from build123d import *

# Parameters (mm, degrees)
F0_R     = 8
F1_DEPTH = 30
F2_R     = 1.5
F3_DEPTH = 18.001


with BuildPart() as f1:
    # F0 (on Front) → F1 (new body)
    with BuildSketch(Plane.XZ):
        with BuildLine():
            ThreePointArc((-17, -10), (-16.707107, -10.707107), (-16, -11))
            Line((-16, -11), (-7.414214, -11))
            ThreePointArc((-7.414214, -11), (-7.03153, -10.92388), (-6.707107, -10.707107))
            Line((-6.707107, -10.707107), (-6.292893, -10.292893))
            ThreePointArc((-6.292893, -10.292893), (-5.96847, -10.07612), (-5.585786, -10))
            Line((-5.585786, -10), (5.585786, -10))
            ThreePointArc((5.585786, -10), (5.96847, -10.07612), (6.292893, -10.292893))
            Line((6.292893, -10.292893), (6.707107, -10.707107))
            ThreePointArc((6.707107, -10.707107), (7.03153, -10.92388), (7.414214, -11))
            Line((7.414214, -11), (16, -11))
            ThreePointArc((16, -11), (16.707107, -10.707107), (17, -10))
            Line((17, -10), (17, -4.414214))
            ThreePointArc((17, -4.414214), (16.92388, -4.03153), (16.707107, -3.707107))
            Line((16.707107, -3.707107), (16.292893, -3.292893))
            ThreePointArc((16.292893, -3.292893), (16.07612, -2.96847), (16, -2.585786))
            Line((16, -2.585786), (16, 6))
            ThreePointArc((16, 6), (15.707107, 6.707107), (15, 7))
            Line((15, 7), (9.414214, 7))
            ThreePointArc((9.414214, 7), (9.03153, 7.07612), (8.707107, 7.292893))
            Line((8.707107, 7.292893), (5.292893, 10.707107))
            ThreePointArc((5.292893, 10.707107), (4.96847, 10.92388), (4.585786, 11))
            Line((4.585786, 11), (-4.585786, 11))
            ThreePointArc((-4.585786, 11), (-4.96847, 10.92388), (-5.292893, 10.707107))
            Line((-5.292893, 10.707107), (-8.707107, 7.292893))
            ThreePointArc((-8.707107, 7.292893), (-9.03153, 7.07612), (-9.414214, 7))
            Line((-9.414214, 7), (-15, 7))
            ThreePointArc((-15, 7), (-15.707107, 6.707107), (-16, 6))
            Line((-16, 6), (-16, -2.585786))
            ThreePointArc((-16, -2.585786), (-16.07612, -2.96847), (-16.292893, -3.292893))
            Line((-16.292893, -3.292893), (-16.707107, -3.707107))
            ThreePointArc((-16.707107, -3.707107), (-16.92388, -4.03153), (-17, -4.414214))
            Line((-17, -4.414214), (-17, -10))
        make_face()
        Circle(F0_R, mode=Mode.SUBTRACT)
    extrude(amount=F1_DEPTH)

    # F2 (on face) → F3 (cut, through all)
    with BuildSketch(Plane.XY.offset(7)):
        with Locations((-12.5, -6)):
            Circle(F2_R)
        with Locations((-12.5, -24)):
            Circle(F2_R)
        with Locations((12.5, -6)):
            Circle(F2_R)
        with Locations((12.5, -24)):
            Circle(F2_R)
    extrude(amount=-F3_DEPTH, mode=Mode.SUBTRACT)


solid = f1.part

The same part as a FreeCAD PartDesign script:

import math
import FreeCAD as App
import Part
import Sketcher

V = App.Vector
Q = App.Units.Quantity

doc = App.newDocument("Part")
body = doc.addObject("PartDesign::Body", "Body")

sketch1 = body.newObject("Sketcher::SketchObject", "Sketch")
sketch1.AttachmentSupport = (doc.getObject("XZ_Plane"), [""])
sketch1.MapMode = "FlatFace"
sketch1.addGeometry([
    Part.ArcOfCircle(Part.Circle(V(-16, -10, 0), V(0, 0, 1), 1), math.radians(180), math.radians(270)),
    Part.LineSegment(V(-16, -11, 0), V(-7.4, -11, 0)),
    Part.ArcOfCircle(Part.Circle(V(-7.4, -10, 0), V(0, 0, 1), 1), math.radians(-90), math.radians(-45)),
    Part.LineSegment(V(-6.7, -10.7, 0), V(-6.3, -10.3, 0)),
    Part.ArcOfCircle(Part.Circle(V(-5.6, -11, 0), V(0, 0, 1), 1), math.radians(90), math.radians(135)),
    Part.LineSegment(V(-5.6, -10, 0), V(5.6, -10, 0)),
    Part.ArcOfCircle(Part.Circle(V(5.6, -11, 0), V(0, 0, 1), 1), math.radians(45), math.radians(90)),
    Part.LineSegment(V(6.3, -10.3, 0), V(6.7, -10.7, 0)),
    Part.ArcOfCircle(Part.Circle(V(7.4, -10, 0), V(0, 0, 1), 1), math.radians(-135), math.radians(-90)),
    Part.LineSegment(V(7.4, -11, 0), V(16, -11, 0)),
    Part.ArcOfCircle(Part.Circle(V(16, -10, 0), V(0, 0, 1), 1), math.radians(-90), math.radians(0)),
    Part.LineSegment(V(17, -10, 0), V(17, -4.4, 0)),
    Part.ArcOfCircle(Part.Circle(V(16, -4.4, 0), V(0, 0, 1), 1), math.radians(0), math.radians(45)),
    Part.LineSegment(V(16.7, -3.7, 0), V(16.3, -3.3, 0)),
    Part.ArcOfCircle(Part.Circle(V(17, -2.6, 0), V(0, 0, 1), 1), math.radians(180), math.radians(225)),
    Part.LineSegment(V(16, -2.6, 0), V(16, 6, 0)),
    Part.ArcOfCircle(Part.Circle(V(15, 6, 0), V(0, 0, 1), 1), math.radians(0), math.radians(90)),
    Part.LineSegment(V(15, 7, 0), V(9.4, 7, 0)),
    Part.ArcOfCircle(Part.Circle(V(9.4, 8, 0), V(0, 0, 1), 1), math.radians(-135), math.radians(-90)),
    Part.LineSegment(V(8.7, 7.3, 0), V(5.3, 10.7, 0)),
    Part.ArcOfCircle(Part.Circle(V(4.6, 10, 0), V(0, 0, 1), 1), math.radians(45), math.radians(90)),
    Part.LineSegment(V(4.6, 11, 0), V(-4.6, 11, 0)),
    Part.ArcOfCircle(Part.Circle(V(-4.6, 10, 0), V(0, 0, 1), 1), math.radians(90), math.radians(135)),
    Part.LineSegment(V(-5.3, 10.7, 0), V(-8.7, 7.3, 0)),
    Part.ArcOfCircle(Part.Circle(V(-9.4, 8, 0), V(0, 0, 1), 1), math.radians(-90), math.radians(-45)),
    Part.LineSegment(V(-9.4, 7, 0), V(-15, 7, 0)),
    Part.ArcOfCircle(Part.Circle(V(-15, 6, 0), V(0, 0, 1), 1), math.radians(90), math.radians(180)),
    Part.LineSegment(V(-16, 6, 0), V(-16, -2.6, 0)),
    Part.ArcOfCircle(Part.Circle(V(-17, -2.6, 0), V(0, 0, 1), 1), math.radians(-45), math.radians(0)),
    Part.LineSegment(V(-16.3, -3.3, 0), V(-16.7, -3.7, 0)),
    Part.ArcOfCircle(Part.Circle(V(-16, -4.4, 0), V(0, 0, 1), 1), math.radians(135), math.radians(180)),
    Part.LineSegment(V(-17, -4.4, 0), V(-17, -10, 0)),
    Part.Circle(V(0, 0, 0), V(0, 0, 1), 8),
], False)
sketch1.addConstraint([
    Sketcher.Constraint("Tangent", 0, 2, 1, 1),
    Sketcher.Constraint("Coincident", 1, 2, 2, 1),
    Sketcher.Constraint("Coincident", 2, 2, 3, 1),
    Sketcher.Constraint("Coincident", 3, 2, 4, 2),
    Sketcher.Constraint("Coincident", 4, 1, 5, 1),
    Sketcher.Constraint("Coincident", 5, 2, 6, 2),
    Sketcher.Constraint("Coincident", 6, 1, 7, 1),
    Sketcher.Constraint("Coincident", 7, 2, 8, 1),
    Sketcher.Constraint("Coincident", 8, 2, 9, 1),
    Sketcher.Constraint("Tangent", 9, 2, 10, 1),
    Sketcher.Constraint("Tangent", 10, 2, 11, 1),
    Sketcher.Constraint("Coincident", 11, 2, 12, 1),
    Sketcher.Constraint("Coincident", 12, 2, 13, 1),
    Sketcher.Constraint("Coincident", 13, 2, 14, 2),
    Sketcher.Constraint("Coincident", 14, 1, 15, 1),
    Sketcher.Constraint("Tangent", 15, 2, 16, 1),
    Sketcher.Constraint("Tangent", 16, 2, 17, 1),
    Sketcher.Constraint("Coincident", 17, 2, 18, 2),
    Sketcher.Constraint("Coincident", 18, 1, 19, 1),
    Sketcher.Constraint("Coincident", 19, 2, 20, 1),
    Sketcher.Constraint("Coincident", 20, 2, 21, 1),
    Sketcher.Constraint("Coincident", 21, 2, 22, 1),
    Sketcher.Constraint("Coincident", 22, 2, 23, 1),
    Sketcher.Constraint("Coincident", 23, 2, 24, 2),
    Sketcher.Constraint("Coincident", 24, 1, 25, 1),
    Sketcher.Constraint("Tangent", 25, 2, 26, 1),
    Sketcher.Constraint("Tangent", 26, 2, 27, 1),
    Sketcher.Constraint("Coincident", 27, 2, 28, 2),
    Sketcher.Constraint("Coincident", 28, 1, 29, 1),
    Sketcher.Constraint("Coincident", 29, 2, 30, 1),
    Sketcher.Constraint("Coincident", 30, 2, 31, 1),
    Sketcher.Constraint("Tangent", 31, 2, 0, 1),
    Sketcher.Constraint("Horizontal", 1),
    Sketcher.Constraint("Horizontal", 5),
    Sketcher.Constraint("Horizontal", 9),
    Sketcher.Constraint("Vertical", 11),
    Sketcher.Constraint("Vertical", 15),
    Sketcher.Constraint("Horizontal", 17),
    Sketcher.Constraint("Horizontal", 21),
    Sketcher.Constraint("Horizontal", 25),
    Sketcher.Constraint("Vertical", 27),
    Sketcher.Constraint("Vertical", 31),
    Sketcher.Constraint("Coincident", 32, 3, -1, 1),
    Sketcher.Constraint("Equal", 2, 4),
    Sketcher.Constraint("Equal", 4, 6),
    Sketcher.Constraint("Equal", 6, 8),
    Sketcher.Constraint("Equal", 0, 10),
    Sketcher.Constraint("Equal", 8, 12),
    Sketcher.Constraint("Equal", 12, 14),
    Sketcher.Constraint("Equal", 10, 16),
    Sketcher.Constraint("Equal", 14, 18),
    Sketcher.Constraint("Equal", 18, 20),
    Sketcher.Constraint("Equal", 20, 22),
    Sketcher.Constraint("Equal", 22, 24),
    Sketcher.Constraint("Equal", 16, 26),
    Sketcher.Constraint("Equal", 24, 28),
    Sketcher.Constraint("Equal", 28, 30),
    Sketcher.Constraint("Symmetric", 2, 3, 8, 3, -2),
    Sketcher.Constraint("Symmetric", 18, 3, 24, 3, -2),
    Sketcher.Constraint("Symmetric", 14, 3, 28, 3, -2),
    Sketcher.Constraint("Symmetric", 12, 3, 30, 3, -2),
    Sketcher.Constraint("Symmetric", 3, 2, 6, 1, -2),
    Sketcher.Constraint("Symmetric", 19, 2, 22, 2, -2),
    Sketcher.Constraint("Perpendicular", 3, 7),
    Sketcher.Constraint("Parallel", 7, 13),
    Sketcher.Constraint("Parallel", 13, 19),
    Sketcher.Constraint("Horizontal", 10, 3, 4, 1),
    Sketcher.Constraint("Horizontal", 2, 2, 7, 2),
    Sketcher.Constraint("Horizontal", 18, 1, 23, 2),
    Sketcher.Constraint("Horizontal", 14, 1, 27, 2),
    Sketcher.Constraint("Horizontal", 13, 2, 28, 1),
    Sketcher.Constraint("Horizontal", 12, 2, 29, 2),
    Sketcher.Constraint("Horizontal", 11, 2, 30, 2),
    Sketcher.Constraint("Vertical", 9, 2, 14, 1),
    Sketcher.Constraint("Equal", 1, 9),
    Sketcher.Constraint("Equal", 17, 25),
    Sketcher.Constraint("Equal", 25, 11),
    Sketcher.Constraint("Equal", 9, 15),
    Sketcher.Constraint("Equal", 7, 13),
    Sketcher.Constraint("Diameter", 32, Q("16 mm")),
    Sketcher.Constraint("Radius", 0, Q("0.999999 mm")),
    Sketcher.Constraint("DistanceX", 0, 3, -1, 1, Q("16.000001 mm")),
    Sketcher.Constraint("DistanceY", 0, 3, -1, 1, Q("10.000001 mm")),
    Sketcher.Constraint("DistanceY", -1, 1, 16, 3, Q("6.000001 mm")),
    Sketcher.Constraint("DistanceY", -1, 1, 20, 2, Q("11 mm")),
    Sketcher.Constraint("DistanceX", 2, 3, 6, 3, Q("13 mm")),
    Sketcher.Constraint("DistanceX", 8, 3, 18, 3, Q("2 mm")),
    Sketcher.Constraint("Radius", 2, Q("0.999994 mm")),
    Sketcher.Constraint("DistanceY", 2, 2, 2, 3, Q("0.707101 mm")),
    Sketcher.Constraint("DistanceY", 4, 3, 3, 2, Q("0.707101 mm")),
    Sketcher.Constraint("DistanceX", 12, 3, 12, 2, Q("0.707101 mm")),
    Sketcher.Constraint("DistanceY", 18, 1, 18, 3, Q("0.707101 mm")),
    Sketcher.Constraint("DistanceY", 20, 3, 19, 2, Q("0.707101 mm")),
    Sketcher.Constraint("DistanceX", 1, 1, 1, 2, Q("8.585786 mm")),
    Sketcher.Constraint("DistanceX", 5, 1, 5, 2, Q("11.171572 mm")),
    Sketcher.Constraint("DistanceX", 17, 2, 17, 1, Q("5.585786 mm")),
    Sketcher.Constraint("DistanceX", 21, 2, 21, 1, Q("9.171572 mm")),
    Sketcher.Constraint("DistanceY", 12, 3, -1, 1, Q("4.414211 mm")),
    Sketcher.Constraint("DistanceX", 2, 2, 4, 1, Q("1.121321 mm")),
    Sketcher.Constraint("DistanceX", 20, 2, 18, 1, Q("4.121321 mm")),
])
pad1 = body.newObject("PartDesign::Pad", "Pad")
pad1.Profile = sketch1
pad1.Length = 30

sketch2 = body.newObject("Sketcher::SketchObject", "Sketch001")
sketch2.AttachmentSupport = (doc.getObject("XY_Plane"), [""])
sketch2.MapMode = "FlatFace"
sketch2.AttachmentOffset = App.Placement(V(0, 0, 7), App.Rotation())
sketch2.addGeometry([
    Part.Circle(V(-12.5, -6, 0), V(0, 0, 1), 1.5),
    Part.Circle(V(-12.5, -24, 0), V(0, 0, 1), 1.5),
    Part.Circle(V(12.5, -6, 0), V(0, 0, 1), 1.5),
    Part.Circle(V(12.5, -24, 0), V(0, 0, 1), 1.5),
], False)
sketch2.addConstraint([
    Sketcher.Constraint("Equal", 0, 1),
    Sketcher.Constraint("Equal", 1, 2),
    Sketcher.Constraint("Equal", 2, 3),
    Sketcher.Constraint("Symmetric", 0, 3, 2, 3, -2),
    Sketcher.Constraint("Symmetric", 1, 3, 3, 3, -2),
    Sketcher.Constraint("Vertical", 0, 3, 1, 3),
    Sketcher.Constraint("Diameter", 0, Q("3 mm")),
    Sketcher.Constraint("DistanceY", 0, 3, -1, 1, Q("6 mm")),
    Sketcher.Constraint("DistanceY", 1, 3, -1, 1, Q("24 mm")),
    Sketcher.Constraint("DistanceX", 0, 3, 2, 3, Q("25 mm")),
])
pocket1 = body.newObject("PartDesign::Pocket", "Pocket")
pocket1.Profile = sketch2
pocket1.Type = "ThroughAll"

doc.recompute()
